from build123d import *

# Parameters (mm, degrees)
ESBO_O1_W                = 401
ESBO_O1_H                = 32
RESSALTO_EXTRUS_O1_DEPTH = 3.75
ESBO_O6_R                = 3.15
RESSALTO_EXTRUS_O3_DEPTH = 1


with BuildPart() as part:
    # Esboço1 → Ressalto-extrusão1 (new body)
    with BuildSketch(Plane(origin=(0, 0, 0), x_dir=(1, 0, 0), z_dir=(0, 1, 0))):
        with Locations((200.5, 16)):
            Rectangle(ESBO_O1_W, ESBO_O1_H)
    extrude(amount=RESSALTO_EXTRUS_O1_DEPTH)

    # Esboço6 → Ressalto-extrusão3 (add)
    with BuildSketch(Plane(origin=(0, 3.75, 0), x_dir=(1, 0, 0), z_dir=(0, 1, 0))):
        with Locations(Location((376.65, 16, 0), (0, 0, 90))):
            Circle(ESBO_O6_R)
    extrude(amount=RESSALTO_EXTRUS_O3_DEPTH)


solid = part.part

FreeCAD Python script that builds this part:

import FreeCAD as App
import Part
import Sketcher
from FreeCAD import Vector
Q = App.Units.Quantity


def add_polygon(sketch, points):
    """Adds a closed chain of lines whose ends are joined by coincident constraints."""
    first, n = sketch.GeometryCount, len(points)
    for a, b in zip(points, points[1:] + points[:1]):
        sketch.addGeometry(Part.LineSegment(App.Vector(*a, 0), App.Vector(*b, 0)), False)
    for i in range(n):
        sketch.addConstraint(Sketcher.Constraint("Coincident", first + i, 2, first + (i + 1) % n, 1))

doc = App.newDocument("Part")
params = doc.addObject("Spreadsheet::Sheet", "Params")
for row, (alias, value) in enumerate([
    ("sketch1_width", "401 mm"),
    ("sketch1_height", "32 mm"),
    ("pad1_length", "3.75 mm"),
    ("sketch2_diameter", "6.3 mm"),
    ("pad2_length", "1 mm"),
], start=1):
    params.set(f"A{row}", alias)
    params.set(f"B{row}", "=" + value)
    params.setAlias(f"B{row}", alias)

body = doc.addObject("PartDesign::Body", "Body")

# Sketch on XZ plane
sketch1 = body.newObject("Sketcher::SketchObject", "Sketch")
sketch1.AttachmentSupport = (doc.getObject("XZ_Plane"), [""])
sketch1.MapMode = "FlatFace"
add_polygon(sketch1, [(0, -32), (0, 0), (401, 0), (401, -32)])  # lines 0-3
sketch1.addConstraint([
    Sketcher.Constraint("Vertical", 0),
    Sketcher.Constraint("Horizontal", 1),
    Sketcher.Constraint("Vertical", 2),
    Sketcher.Constraint("Horizontal", 3),
    Sketcher.Constraint("Coincident", 0, 2, -1, 1),
    Sketcher.Constraint("DistanceX", 1, 1, 1, 2, Q("401 mm")),
    Sketcher.Constraint("DistanceY", 0, 1, 0, 2, Q("32 mm")),
])
sketch1.setExpression("Constraints[9]", "Params.sketch1_width")
sketch1.setExpression("Constraints[10]", "Params.sketch1_height")
pad1 = body.newObject("PartDesign::Pad", "Pad")
pad1.Profile = sketch1
pad1.setExpression("Length", "Params.pad1_length")
pad1.Reversed = True

# Sketch on XZ plane
sketch2 = body.newObject("Sketcher::SketchObject", "Sketch001")
sketch2.AttachmentSupport = (doc.getObject("XZ_Plane"), [""])
sketch2.MapMode = "FlatFace"
sketch2.AttachmentOffset = App.Placement(Vector(0, 0, -3.75), App.Rotation())
sketch2.addGeometry(Part.Circle(Vector(376.65, -16, 0), Vector(0, 0, 1), 3.15), False)
sketch2.addConstraint([
    Sketcher.Constraint("Diameter", 0, Q("6.3 mm")),
    Sketcher.Constraint("DistanceY", 0, 3, -1, 1, Q("16 mm")),
    Sketcher.Constraint("DistanceX", -1, 1, 0, 3, Q("376.65 mm")),
])
sketch2.setExpression("Constraints[0]", "Params.sketch2_diameter")
pad2 = body.newObject("PartDesign::Pad", "Pad001")
pad2.Profile = sketch2
pad2.setExpression("Length", "Params.pad2_length")
pad2.Reversed = True

doc.recompute()
